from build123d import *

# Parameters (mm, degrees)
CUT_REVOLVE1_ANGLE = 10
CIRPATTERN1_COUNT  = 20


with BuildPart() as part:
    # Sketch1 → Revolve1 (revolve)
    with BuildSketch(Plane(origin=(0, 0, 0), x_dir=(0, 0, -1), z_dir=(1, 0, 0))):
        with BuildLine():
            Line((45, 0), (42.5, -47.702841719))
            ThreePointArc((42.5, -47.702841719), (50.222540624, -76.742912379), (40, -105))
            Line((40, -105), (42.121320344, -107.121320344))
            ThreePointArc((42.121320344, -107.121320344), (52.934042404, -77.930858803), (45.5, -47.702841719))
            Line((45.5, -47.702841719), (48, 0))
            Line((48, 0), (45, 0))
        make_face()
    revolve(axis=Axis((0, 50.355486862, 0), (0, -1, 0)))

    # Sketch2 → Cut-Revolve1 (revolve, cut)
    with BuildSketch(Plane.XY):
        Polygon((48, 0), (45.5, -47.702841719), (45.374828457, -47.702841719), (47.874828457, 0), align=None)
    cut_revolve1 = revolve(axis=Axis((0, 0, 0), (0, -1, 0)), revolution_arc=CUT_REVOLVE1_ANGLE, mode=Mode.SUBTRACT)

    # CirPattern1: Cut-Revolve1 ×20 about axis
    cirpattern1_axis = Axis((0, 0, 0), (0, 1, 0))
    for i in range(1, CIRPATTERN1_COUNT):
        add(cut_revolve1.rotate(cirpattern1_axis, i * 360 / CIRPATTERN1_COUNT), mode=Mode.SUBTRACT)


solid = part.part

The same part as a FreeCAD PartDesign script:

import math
import FreeCAD as App
import Part
import Sketcher
Q = App.Units.Quantity

doc = App.newDocument("Part")
params = doc.addObject("Spreadsheet::Sheet", "Params")
for row, (alias, value) in enumerate([
    ("sketch1_height", "3 mm"),
    ("sketch1_length", "3 mm"),
    ("revolution_angle", "360 deg"),
    ("groove_angle", "10 deg"),
], start=1):
    params.set(f"A{row}", alias)
    params.set(f"B{row}", "=" + value)
    params.setAlias(f"B{row}", alias)

body = doc.addObject("PartDesign::Body", "Body")

# Sketch on YZ plane
sketch1 = body.newObject("Sketcher::SketchObject", "Sketch")
sketch1.AttachmentSupport = (doc.getObject("YZ_Plane"), [""])
sketch1.MapMode = "FlatFace"
sketch1.addGeometry([
    Part.LineSegment(App.Vector(0, -45, 0), App.Vector(-47.702842, -42.5, 0)),  # 0
    Part.ArcOfCircle(Part.Circle(App.Vector(-74.551593, 0, 0), App.Vector(0, 0, 1), 50.270324), math.radians(-127.27876), math.radians(-57.717951)),  # 1
    Part.LineSegment(App.Vector(-105, -40, 0), App.Vector(-107.12132, -42.12132, 0)),  # 2
    Part.ArcOfCircle(Part.Circle(App.Vector(-74.9209, 0, 0), App.Vector(0, 0, 1), 53.01955), math.radians(-127.396771), math.radians(-59.112175)),  # 3
    Part.LineSegment(App.Vector(-47.702842, -45.5, 0), App.Vector(0, -48, 0)),  # 4
    Part.LineSegment(App.Vector(0, -48, 0), App.Vector(0, -45, 0)),  # 5
], False)
sketch1.addConstraint([
    Sketcher.Constraint("Coincident", 0, 2, 1, 2),
    Sketcher.Constraint("Coincident", 1, 1, 2, 1),
    Sketcher.Constraint("Coincident", 2, 2, 3, 1),
    Sketcher.Constraint("Coincident", 3, 2, 4, 1),
    Sketcher.Constraint("Coincident", 4, 2, 5, 1),
    Sketcher.Constraint("Coincident", 5, 2, 0, 1),
    Sketcher.Constraint("Vertical", 5),
    Sketcher.Constraint("PointOnObject", 1, 3, -1),
    Sketcher.Constraint("PointOnObject", 3, 3, -1),
    Sketcher.Constraint("PointOnObject", 4, 2, -2),
    Sketcher.Constraint("Parallel", 0, 4),
    Sketcher.Constraint("Vertical", 0, 2, 3, 2),
    Sketcher.Constraint("DistanceY", 5, 1, 5, 2, Q("3 mm")),
    Sketcher.Constraint("Angle", 0, Q("177 deg")),
    Sketcher.Constraint("Angle", 2, Q("-135 deg")),
    Sketcher.Constraint("Distance", 2, Q("3 mm")),
    Sketcher.Constraint("DistanceX", 1, 1, -1, 1, Q("105 mm")),
    Sketcher.Constraint("DistanceY", 1, 1, -1, 1, Q("40 mm")),
    Sketcher.Constraint("DistanceY", 4, 2, -1, 1, Q("48 mm")),
    Sketcher.Constraint("DistanceY", 0, 2, -1, 1, Q("42.5 mm")),
])
sketch1.setExpression("Constraints[12]", "Params.sketch1_height")
sketch1.setExpression("Constraints[15]", "Params.sketch1_length")
revolution = body.newObject("PartDesign::Revolution", "Revolution")
revolution.Profile = sketch1
revolution.ReferenceAxis = (sketch1, ["H_Axis"])
revolution.setExpression("Angle", "Params.revolution_angle")

# Sketch on XY plane
sketch2 = body.newObject("Sketcher::SketchObject", "Sketch001")
sketch2.AttachmentSupport = (doc.getObject("XY_Plane"), [""])
sketch2.MapMode = "FlatFace"
sketch2.addGeometry([
    Part.LineSegment(App.Vector(45.5, -47.702842, 0), App.Vector(48, 0, 0)),
    Part.LineSegment(App.Vector(48, 0, 0), App.Vector(47.874828, 0, 0)),
    Part.LineSegment(App.Vector(47.874828, 0, 0), App.Vector(45.374828, -47.702842, 0)),
    Part.LineSegment(App.Vector(45.374828, -47.702842, 0), App.Vector(45.5, -47.702842, 0)),
], False)
sketch2.addConstraint([
    Sketcher.Constraint("Coincident", 0, 2, 1, 1),
    Sketcher.Constraint("Coincident", 1, 2, 2, 1),
    Sketcher.Constraint("Coincident", 2, 2, 3, 1),
    Sketcher.Constraint("Coincident", 3, 2, 0, 1),
    Sketcher.Constraint("Horizontal", 1),
    Sketcher.Constraint("Horizontal", 3),
    Sketcher.Constraint("PointOnObject", 0, 2, -1),
    Sketcher.Constraint("Parallel", 0, 2),
    Sketcher.Constraint("Angle", 0, Q("87 deg")),
    Sketcher.Constraint("DistanceX", -1, 1, 0, 2, Q("48 mm")),
    Sketcher.Constraint("DistanceX", -1, 1, 3, 2, Q("45.5 mm")),
    Sketcher.Constraint("DistanceX", 1, 2, 1, 1, Q("0.125172 mm")),
])
groove = body.newObject("PartDesign::Groove", "Groove")
groove.Profile = sketch2
groove.ReferenceAxis = (sketch2, ["V_Axis"])
groove.setExpression("Angle", "Params.groove_angle")
groove.Reversed = True
doc.recompute()

polarpattern = body.newObject("PartDesign::PolarPattern", "PolarPattern")
polarpattern.Originals = [groove]
polarpattern.Axis = (doc.getObject("Y_Axis"), [""])
polarpattern.Angle = 360
polarpattern.Occurrences = 20
body.Tip = polarpattern

doc.recompute()
